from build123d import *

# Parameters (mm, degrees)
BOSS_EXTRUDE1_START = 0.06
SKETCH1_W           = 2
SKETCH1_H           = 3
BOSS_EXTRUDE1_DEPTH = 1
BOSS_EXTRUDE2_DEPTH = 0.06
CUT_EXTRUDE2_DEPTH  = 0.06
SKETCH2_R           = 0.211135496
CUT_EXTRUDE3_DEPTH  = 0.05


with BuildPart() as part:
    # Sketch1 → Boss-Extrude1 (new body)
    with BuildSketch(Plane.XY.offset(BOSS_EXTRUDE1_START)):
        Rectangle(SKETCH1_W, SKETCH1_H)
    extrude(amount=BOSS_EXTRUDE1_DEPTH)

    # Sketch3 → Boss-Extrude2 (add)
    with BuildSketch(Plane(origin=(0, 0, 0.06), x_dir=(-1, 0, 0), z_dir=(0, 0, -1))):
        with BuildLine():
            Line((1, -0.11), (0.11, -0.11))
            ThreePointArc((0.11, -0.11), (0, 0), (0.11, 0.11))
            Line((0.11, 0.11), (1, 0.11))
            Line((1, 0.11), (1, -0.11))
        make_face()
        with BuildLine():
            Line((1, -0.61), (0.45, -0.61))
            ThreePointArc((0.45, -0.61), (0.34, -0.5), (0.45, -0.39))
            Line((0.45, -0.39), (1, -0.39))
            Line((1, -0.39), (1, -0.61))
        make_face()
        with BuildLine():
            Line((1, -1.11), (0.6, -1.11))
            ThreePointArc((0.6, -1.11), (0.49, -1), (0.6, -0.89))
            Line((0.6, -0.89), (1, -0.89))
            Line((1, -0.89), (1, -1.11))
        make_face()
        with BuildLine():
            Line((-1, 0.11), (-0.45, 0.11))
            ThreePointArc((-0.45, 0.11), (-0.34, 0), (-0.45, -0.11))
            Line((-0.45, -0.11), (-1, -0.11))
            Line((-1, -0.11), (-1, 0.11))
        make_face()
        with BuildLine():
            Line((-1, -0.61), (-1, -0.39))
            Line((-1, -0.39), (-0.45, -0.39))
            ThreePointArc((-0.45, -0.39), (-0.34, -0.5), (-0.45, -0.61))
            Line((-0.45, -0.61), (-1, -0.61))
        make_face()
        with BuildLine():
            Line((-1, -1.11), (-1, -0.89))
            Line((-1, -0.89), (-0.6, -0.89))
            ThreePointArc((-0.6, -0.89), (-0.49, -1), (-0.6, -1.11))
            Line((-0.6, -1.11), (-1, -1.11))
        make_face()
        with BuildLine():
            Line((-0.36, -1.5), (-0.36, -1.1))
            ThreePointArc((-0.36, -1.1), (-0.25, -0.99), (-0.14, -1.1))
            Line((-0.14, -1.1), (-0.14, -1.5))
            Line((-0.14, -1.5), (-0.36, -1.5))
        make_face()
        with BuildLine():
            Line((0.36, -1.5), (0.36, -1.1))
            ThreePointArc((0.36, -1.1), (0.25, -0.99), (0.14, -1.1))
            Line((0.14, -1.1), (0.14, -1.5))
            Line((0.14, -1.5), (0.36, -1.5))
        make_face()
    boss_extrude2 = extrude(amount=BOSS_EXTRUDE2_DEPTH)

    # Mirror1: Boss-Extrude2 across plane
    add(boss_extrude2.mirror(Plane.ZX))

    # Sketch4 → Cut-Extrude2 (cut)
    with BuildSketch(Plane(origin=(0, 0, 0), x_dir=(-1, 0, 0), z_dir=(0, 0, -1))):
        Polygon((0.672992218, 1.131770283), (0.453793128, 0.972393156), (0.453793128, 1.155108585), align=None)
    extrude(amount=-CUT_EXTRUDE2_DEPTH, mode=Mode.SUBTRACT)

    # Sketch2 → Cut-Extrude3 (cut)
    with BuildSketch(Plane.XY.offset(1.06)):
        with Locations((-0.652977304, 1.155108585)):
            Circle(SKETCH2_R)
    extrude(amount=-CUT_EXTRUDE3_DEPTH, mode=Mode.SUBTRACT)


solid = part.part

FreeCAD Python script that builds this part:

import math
import FreeCAD as App
import Part
import Sketcher
from FreeCAD import Vector
Q = App.Units.Quantity

doc = App.newDocument("Part")
body = doc.addObject("PartDesign::Body", "Body")

sketch1 = body.newObject("Sketcher::SketchObject", "Sketch")
sketch1.AttachmentSupport = (doc.getObject("XY_Plane"), [""])
sketch1.MapMode = "FlatFace"
sketch1.AttachmentOffset = App.Placement(Vector(0, 0, 0.06), App.Rotation())
sketch1.addGeometry([
    Part.LineSegment(Vector(-1, 1.5, 0), Vector(-1, -1.5, 0)),
    Part.LineSegment(Vector(-1, -1.5, 0), Vector(1, -1.5, 0)),
    Part.LineSegment(Vector(1, -1.5, 0), Vector(1, 1.5, 0)),
    Part.LineSegment(Vector(1, 1.5, 0), Vector(-1, 1.5, 0)),
], False)
sketch1.addConstraint([
    Sketcher.Constraint("Coincident", 0, 2, 1, 1),
    Sketcher.Constraint("Coincident", 1, 2, 2, 1),
    Sketcher.Constraint("Coincident", 2, 2, 3, 1),
    Sketcher.Constraint("Coincident", 3, 2, 0, 1),
    Sketcher.Constraint("Vertical", 0),
    Sketcher.Constraint("Horizontal", 1),
    Sketcher.Constraint("Vertical", 2),
    Sketcher.Constraint("Horizontal", 3),
    Sketcher.Constraint("Symmetric", 0, 2, 2, 2, -1, 1),
    Sketcher.Constraint("DistanceX", 1, 1, 1, 2, Q("2 mm")),
    Sketcher.Constraint("DistanceY", 0, 2, 0, 1, Q("3 mm")),
])
pad1 = body.newObject("PartDesign::Pad", "Pad")
pad1.Profile = sketch1
pad1.Length = 1

sketch2 = body.newObject("Sketcher::SketchObject", "Sketch001")
sketch2.AttachmentSupport = (doc.getObject("XY_Plane"), [""])
sketch2.MapMode = "FlatFace"
sketch2.AttachmentOffset = App.Placement(Vector(0, 0, 0.06), App.Rotation())
sketch2.addGeometry([
    Part.LineSegment(Vector(-0.11, -0.11, 0), Vector(-1, -0.11, 0)),
    Part.LineSegment(Vector(-1, -0.11, 0), Vector(-1, 0.11, 0)),
    Part.LineSegment(Vector(-1, 0.11, 0), Vector(-0.11, 0.11, 0)),
    Part.ArcOfCircle(Part.Circle(Vector(-0.11, 0, 0), Vector(0, 0, 1), 0.11), math.radians(-90), math.radians(90)),
    Part.LineSegment(Vector(-0.45, -0.61, 0), Vector(-1, -0.61, 0)),
    Part.LineSegment(Vector(-1, -0.61, 0), Vector(-1, -0.39, 0)),
    Part.LineSegment(Vector(-1, -0.39, 0), Vector(-0.45, -0.39, 0)),
    Part.ArcOfCircle(Part.Circle(Vector(-0.45, -0.5, 0), Vector(0, 0, 1), 0.11), math.radians(-90), math.radians(90)),
    Part.LineSegment(Vector(-0.6, -1.11, 0), Vector(-1, -1.11, 0)),
    Part.LineSegment(Vector(-1, -1.11, 0), Vector(-1, -0.89, 0)),
    Part.LineSegment(Vector(-1, -0.89, 0), Vector(-0.6, -0.89, 0)),
    Part.ArcOfCircle(Part.Circle(Vector(-0.6, -1, 0), Vector(0, 0, 1), 0.11), math.radians(-90), math.radians(90)),
    Part.LineSegment(Vector(0.45, 0.11, 0), Vector(1, 0.11, 0)),
    Part.LineSegment(Vector(1, 0.11, 0), Vector(1, -0.11, 0)),
    Part.LineSegment(Vector(1, -0.11, 0), Vector(0.45, -0.11, 0)),
    Part.ArcOfCircle(Part.Circle(Vector(0.45, 0, 0), Vector(0, 0, 1), 0.11), math.radians(90), math.radians(270)),
    Part.LineSegment(Vector(1, -0.39, 0), Vector(1, -0.61, 0)),
    Part.LineSegment(Vector(1, -0.61, 0), Vector(0.45, -0.61, 0)),
    Part.ArcOfCircle(Part.Circle(Vector(0.45, -0.5, 0), Vector(0, 0, 1), 0.11), math.radians(90), math.radians(270)),
    Part.LineSegment(Vector(0.45, -0.39, 0), Vector(1, -0.39, 0)),
    Part.LineSegment(Vector(1, -0.89, 0), Vector(1, -1.11, 0)),
    Part.LineSegment(Vector(1, -1.11, 0), Vector(0.6, -1.11, 0)),
    Part.ArcOfCircle(Part.Circle(Vector(0.6, -1, 0), Vector(0, 0, 1), 0.11), math.radians(90), math.radians(270)),
    Part.LineSegment(Vector(0.6, -0.89, 0), Vector(1, -0.89, 0)),
    Part.LineSegment(Vector(0.36, -1.1, 0), Vector(0.36, -1.5, 0)),
    Part.LineSegment(Vector(0.36, -1.5, 0), Vector(0.14, -1.5, 0)),
    Part.LineSegment(Vector(0.14, -1.5, 0), Vector(0.14, -1.1, 0)),
    Part.ArcOfCircle(Part.Circle(Vector(0.25, -1.1, 0), Vector(0, 0, 1), 0.11), math.radians(0), math.radians(180)),
    Part.LineSegment(Vector(-0.36, -1.5, 0), Vector(-0.36, -1.1, 0)),
    Part.ArcOfCircle(Part.Circle(Vector(-0.25, -1.1, 0), Vector(0, 0, 1), 0.11), math.radians(0), math.radians(180)),
    Part.LineSegment(Vector(-0.14, -1.1, 0), Vector(-0.14, -1.5, 0)),
    Part.LineSegment(Vector(-0.14, -1.5, 0), Vector(-0.36, -1.5, 0)),
], False)
sketch2.addConstraint([
    Sketcher.Constraint("Coincident", 0, 2, 1, 1),
    Sketcher.Constraint("Coincident", 1, 2, 2, 1),
    Sketcher.Constraint("Tangent", 2, 2, 3, 2),
    Sketcher.Constraint("Tangent", 3, 1, 0, 1),
    Sketcher.Constraint("Coincident", 4, 2, 5, 1),
    Sketcher.Constraint("Coincident", 5, 2, 6, 1),
    Sketcher.Constraint("Tangent", 6, 2, 7, 2),
    Sketcher.Constraint("Tangent", 7, 1, 4, 1),
    Sketcher.Constraint("Coincident", 8, 2, 9, 1),
    Sketcher.Constraint("Coincident", 9, 2, 10, 1),
    Sketcher.Constraint("Tangent", 10, 2, 11, 2),
    Sketcher.Constraint("Tangent", 11, 1, 8, 1),
    Sketcher.Constraint("Coincident", 12, 2, 13, 1),
    Sketcher.Constraint("Coincident", 13, 2, 14, 1),
    Sketcher.Constraint("Tangent", 14, 2, 15, 2),
    Sketcher.Constraint("Tangent", 15, 1, 12, 1),
    Sketcher.Constraint("Coincident", 16, 2, 17, 1),
    Sketcher.Constraint("Tangent", 17, 2, 18, 2),
    Sketcher.Constraint("Tangent", 18, 1, 19, 1),
    Sketcher.Constraint("Coincident", 19, 2, 16, 1),
    Sketcher.Constraint("Coincident", 20, 2, 21, 1),
    Sketcher.Constraint("Tangent", 21, 2, 22, 2),
    Sketcher.Constraint("Tangent", 22, 1, 23, 1),
    Sketcher.Constraint("Coincident", 23, 2, 20, 1),
    Sketcher.Constraint("Coincident", 24, 2, 25, 1),
    Sketcher.Constraint("Coincident", 25, 2, 26, 1),
    Sketcher.Constraint("Tangent", 26, 2, 27, 2),
    Sketcher.Constraint("Tangent", 27, 1, 24, 1),
    Sketcher.Constraint("Tangent", 28, 2, 29, 2),
    Sketcher.Constraint("Tangent", 29, 1, 30, 1),
    Sketcher.Constraint("Coincident", 30, 2, 31, 1),
    Sketcher.Constraint("Coincident", 31, 2, 28, 1),
    Sketcher.Constraint("Horizontal", 0),
    Sketcher.Constraint("Vertical", 1),
    Sketcher.Constraint("Horizontal", 2),
    Sketcher.Constraint("Horizontal", 4),
    Sketcher.Constraint("Vertical", 5),
    Sketcher.Constraint("Horizontal", 6),
    Sketcher.Constraint("Horizontal", 8),
    Sketcher.Constraint("Vertical", 9),
    Sketcher.Constraint("Horizontal", 10),
    Sketcher.Constraint("Horizontal", 12),
    Sketcher.Constraint("Vertical", 13),
    Sketcher.Constraint("Horizontal", 14),
    Sketcher.Constraint("Vertical", 16),
    Sketcher.Constraint("Horizontal", 17),
    Sketcher.Constraint("Horizontal", 19),
    Sketcher.Constraint("Vertical", 20),
    Sketcher.Constraint("Horizontal", 21),
    Sketcher.Constraint("Horizontal", 23),
    Sketcher.Constraint("Vertical", 24),
    Sketcher.Constraint("Horizontal", 25),
    Sketcher.Constraint("Vertical", 26),
    Sketcher.Constraint("Vertical", 28),
    Sketcher.Constraint("Vertical", 30),
    Sketcher.Constraint("Horizontal", 31),
    Sketcher.Constraint("Equal", 3, 7),
    Sketcher.Constraint("Equal", 7, 11),
    Sketcher.Constraint("Equal", 11, 15),
    Sketcher.Constraint("Equal", 15, 18),
    Sketcher.Constraint("Equal", 18, 22),
    Sketcher.Constraint("Equal", 22, 27),
    Sketcher.Constraint("Equal", 27, 29),
    Sketcher.Constraint("Symmetric", 0, 2, 12, 2, -1, 1),
    Sketcher.Constraint("Symmetric", 7, 3, 18, 3, -2),
    Sketcher.Constraint("Symmetric", 11, 3, 22, 3, -2),
    Sketcher.Constraint("Symmetric", 27, 3, 29, 3, -2),
    Sketcher.Constraint("PointOnObject", 3, 3, -1),
    Sketcher.Constraint("Horizontal", 25, 2, 30, 2),
    Sketcher.Constraint("Vertical", 15, 3, 18, 3),
    Sketcher.Constraint("Vertical", 1, 2, 4, 2),
    Sketcher.Constraint("Vertical", 5, 2, 8, 2),
    Sketcher.Constraint("Vertical", 13, 2, 16, 2),
    Sketcher.Constraint("Vertical", 19, 2, 20, 2),
    Sketcher.Constraint("Equal", 23, 24),
    Sketcher.Constraint("Radius", 3, Q("0.11 mm")),
    Sketcher.Constraint("DistanceX", 8, 2, 8, 1, Q("0.4 mm")),
    Sketcher.Constraint("DistanceY", 11, 3, -1, 1, Q("1 mm")),
    Sketcher.Constraint("DistanceX", 0, 2, -1, 1, Q("1 mm")),
    Sketcher.Constraint("DistanceX", 0, 2, 0, 1, Q("0.89 mm")),
    Sketcher.Constraint("DistanceX", 4, 2, 4, 1, Q("0.55 mm")),
    Sketcher.Constraint("DistanceY", 7, 3, -1, 1, Q("0.5 mm")),
    Sketcher.Constraint("DistanceY", 27, 3, -1, 1, Q("1.1 mm")),
    Sketcher.Constraint("DistanceX", 27, 3, 18, 3, Q("0.2 mm")),
])
pad2 = body.newObject("PartDesign::Pad", "Pad001")
pad2.Profile = sketch2
pad2.Length = 0.06
pad2.Reversed = True
doc.recompute()

mirrored = body.newObject("PartDesign::Mirrored", "Mirrored")
mirrored.Originals = [pad2]
mirrored.MirrorPlane = (doc.getObject("XZ_Plane"), [""])
body.Tip = mirrored

sketch3 = body.newObject("Sketcher::SketchObject", "Sketch002")
sketch3.AttachmentSupport = (doc.getObject("XY_Plane"), [""])
sketch3.MapMode = "FlatFace"
sketch3.addGeometry([
    Part.LineSegment(Vector(-0.453793, 0.972393, 0), Vector(-0.672992, 1.13177, 0)),
    Part.LineSegment(Vector(-0.672992, 1.13177, 0), Vector(-0.453793, 1.155109, 0)),
    Part.LineSegment(Vector(-0.453793, 1.155109, 0), Vector(-0.453793, 0.972393, 0)),
], False)
sketch3.addConstraint([
    Sketcher.Constraint("Coincident", 0, 2, 1, 1),
    Sketcher.Constraint("Coincident", 1, 2, 2, 1),
    Sketcher.Constraint("Coincident", 2, 2, 0, 1),
    Sketcher.Constraint("Vertical", 2),
    Sketcher.Constraint("DistanceX", 0, 2, 1, 2, Q("0.219199 mm")),
    Sketcher.Constraint("Distance", 1, Q("0.220438 mm")),
    Sketcher.Constraint("DistanceY", 2, 2, 2, 1, Q("0.182715 mm")),
    Sketcher.Constraint("DistanceY", -1, 1, 0, 2, Q("1.13177 mm")),
    Sketcher.Constraint("DistanceX", 0, 2, -1, 1, Q("0.672992 mm")),
])
pocket1 = body.newObject("PartDesign::Pocket", "Pocket")
pocket1.Profile = sketch3
pocket1.Length = 0.06
pocket1.Reversed = True

sketch4 = body.newObject("Sketcher::SketchObject", "Sketch003")
sketch4.AttachmentSupport = (doc.getObject("XY_Plane"), [""])
sketch4.MapMode = "FlatFace"
sketch4.AttachmentOffset = App.Placement(Vector(0, 0, 1.06), App.Rotation())
sketch4.addGeometry(Part.Circle(Vector(-0.652977, 1.155109, 0), Vector(0, 0, 1), 0.211135), False)
sketch4.addConstraint([
    Sketcher.Constraint("Diameter", 0, Q("0.422271 mm")),
    Sketcher.Constraint("DistanceY", -1, 1, 0, 3, Q("1.155109 mm")),
    Sketcher.Constraint("DistanceX", 0, 3, -1, 1, Q("0.652977 mm")),
])
pocket2 = body.newObject("PartDesign::Pocket", "Pocket001")
pocket2.Profile = sketch4
pocket2.Length = 0.05

doc.recompute()
